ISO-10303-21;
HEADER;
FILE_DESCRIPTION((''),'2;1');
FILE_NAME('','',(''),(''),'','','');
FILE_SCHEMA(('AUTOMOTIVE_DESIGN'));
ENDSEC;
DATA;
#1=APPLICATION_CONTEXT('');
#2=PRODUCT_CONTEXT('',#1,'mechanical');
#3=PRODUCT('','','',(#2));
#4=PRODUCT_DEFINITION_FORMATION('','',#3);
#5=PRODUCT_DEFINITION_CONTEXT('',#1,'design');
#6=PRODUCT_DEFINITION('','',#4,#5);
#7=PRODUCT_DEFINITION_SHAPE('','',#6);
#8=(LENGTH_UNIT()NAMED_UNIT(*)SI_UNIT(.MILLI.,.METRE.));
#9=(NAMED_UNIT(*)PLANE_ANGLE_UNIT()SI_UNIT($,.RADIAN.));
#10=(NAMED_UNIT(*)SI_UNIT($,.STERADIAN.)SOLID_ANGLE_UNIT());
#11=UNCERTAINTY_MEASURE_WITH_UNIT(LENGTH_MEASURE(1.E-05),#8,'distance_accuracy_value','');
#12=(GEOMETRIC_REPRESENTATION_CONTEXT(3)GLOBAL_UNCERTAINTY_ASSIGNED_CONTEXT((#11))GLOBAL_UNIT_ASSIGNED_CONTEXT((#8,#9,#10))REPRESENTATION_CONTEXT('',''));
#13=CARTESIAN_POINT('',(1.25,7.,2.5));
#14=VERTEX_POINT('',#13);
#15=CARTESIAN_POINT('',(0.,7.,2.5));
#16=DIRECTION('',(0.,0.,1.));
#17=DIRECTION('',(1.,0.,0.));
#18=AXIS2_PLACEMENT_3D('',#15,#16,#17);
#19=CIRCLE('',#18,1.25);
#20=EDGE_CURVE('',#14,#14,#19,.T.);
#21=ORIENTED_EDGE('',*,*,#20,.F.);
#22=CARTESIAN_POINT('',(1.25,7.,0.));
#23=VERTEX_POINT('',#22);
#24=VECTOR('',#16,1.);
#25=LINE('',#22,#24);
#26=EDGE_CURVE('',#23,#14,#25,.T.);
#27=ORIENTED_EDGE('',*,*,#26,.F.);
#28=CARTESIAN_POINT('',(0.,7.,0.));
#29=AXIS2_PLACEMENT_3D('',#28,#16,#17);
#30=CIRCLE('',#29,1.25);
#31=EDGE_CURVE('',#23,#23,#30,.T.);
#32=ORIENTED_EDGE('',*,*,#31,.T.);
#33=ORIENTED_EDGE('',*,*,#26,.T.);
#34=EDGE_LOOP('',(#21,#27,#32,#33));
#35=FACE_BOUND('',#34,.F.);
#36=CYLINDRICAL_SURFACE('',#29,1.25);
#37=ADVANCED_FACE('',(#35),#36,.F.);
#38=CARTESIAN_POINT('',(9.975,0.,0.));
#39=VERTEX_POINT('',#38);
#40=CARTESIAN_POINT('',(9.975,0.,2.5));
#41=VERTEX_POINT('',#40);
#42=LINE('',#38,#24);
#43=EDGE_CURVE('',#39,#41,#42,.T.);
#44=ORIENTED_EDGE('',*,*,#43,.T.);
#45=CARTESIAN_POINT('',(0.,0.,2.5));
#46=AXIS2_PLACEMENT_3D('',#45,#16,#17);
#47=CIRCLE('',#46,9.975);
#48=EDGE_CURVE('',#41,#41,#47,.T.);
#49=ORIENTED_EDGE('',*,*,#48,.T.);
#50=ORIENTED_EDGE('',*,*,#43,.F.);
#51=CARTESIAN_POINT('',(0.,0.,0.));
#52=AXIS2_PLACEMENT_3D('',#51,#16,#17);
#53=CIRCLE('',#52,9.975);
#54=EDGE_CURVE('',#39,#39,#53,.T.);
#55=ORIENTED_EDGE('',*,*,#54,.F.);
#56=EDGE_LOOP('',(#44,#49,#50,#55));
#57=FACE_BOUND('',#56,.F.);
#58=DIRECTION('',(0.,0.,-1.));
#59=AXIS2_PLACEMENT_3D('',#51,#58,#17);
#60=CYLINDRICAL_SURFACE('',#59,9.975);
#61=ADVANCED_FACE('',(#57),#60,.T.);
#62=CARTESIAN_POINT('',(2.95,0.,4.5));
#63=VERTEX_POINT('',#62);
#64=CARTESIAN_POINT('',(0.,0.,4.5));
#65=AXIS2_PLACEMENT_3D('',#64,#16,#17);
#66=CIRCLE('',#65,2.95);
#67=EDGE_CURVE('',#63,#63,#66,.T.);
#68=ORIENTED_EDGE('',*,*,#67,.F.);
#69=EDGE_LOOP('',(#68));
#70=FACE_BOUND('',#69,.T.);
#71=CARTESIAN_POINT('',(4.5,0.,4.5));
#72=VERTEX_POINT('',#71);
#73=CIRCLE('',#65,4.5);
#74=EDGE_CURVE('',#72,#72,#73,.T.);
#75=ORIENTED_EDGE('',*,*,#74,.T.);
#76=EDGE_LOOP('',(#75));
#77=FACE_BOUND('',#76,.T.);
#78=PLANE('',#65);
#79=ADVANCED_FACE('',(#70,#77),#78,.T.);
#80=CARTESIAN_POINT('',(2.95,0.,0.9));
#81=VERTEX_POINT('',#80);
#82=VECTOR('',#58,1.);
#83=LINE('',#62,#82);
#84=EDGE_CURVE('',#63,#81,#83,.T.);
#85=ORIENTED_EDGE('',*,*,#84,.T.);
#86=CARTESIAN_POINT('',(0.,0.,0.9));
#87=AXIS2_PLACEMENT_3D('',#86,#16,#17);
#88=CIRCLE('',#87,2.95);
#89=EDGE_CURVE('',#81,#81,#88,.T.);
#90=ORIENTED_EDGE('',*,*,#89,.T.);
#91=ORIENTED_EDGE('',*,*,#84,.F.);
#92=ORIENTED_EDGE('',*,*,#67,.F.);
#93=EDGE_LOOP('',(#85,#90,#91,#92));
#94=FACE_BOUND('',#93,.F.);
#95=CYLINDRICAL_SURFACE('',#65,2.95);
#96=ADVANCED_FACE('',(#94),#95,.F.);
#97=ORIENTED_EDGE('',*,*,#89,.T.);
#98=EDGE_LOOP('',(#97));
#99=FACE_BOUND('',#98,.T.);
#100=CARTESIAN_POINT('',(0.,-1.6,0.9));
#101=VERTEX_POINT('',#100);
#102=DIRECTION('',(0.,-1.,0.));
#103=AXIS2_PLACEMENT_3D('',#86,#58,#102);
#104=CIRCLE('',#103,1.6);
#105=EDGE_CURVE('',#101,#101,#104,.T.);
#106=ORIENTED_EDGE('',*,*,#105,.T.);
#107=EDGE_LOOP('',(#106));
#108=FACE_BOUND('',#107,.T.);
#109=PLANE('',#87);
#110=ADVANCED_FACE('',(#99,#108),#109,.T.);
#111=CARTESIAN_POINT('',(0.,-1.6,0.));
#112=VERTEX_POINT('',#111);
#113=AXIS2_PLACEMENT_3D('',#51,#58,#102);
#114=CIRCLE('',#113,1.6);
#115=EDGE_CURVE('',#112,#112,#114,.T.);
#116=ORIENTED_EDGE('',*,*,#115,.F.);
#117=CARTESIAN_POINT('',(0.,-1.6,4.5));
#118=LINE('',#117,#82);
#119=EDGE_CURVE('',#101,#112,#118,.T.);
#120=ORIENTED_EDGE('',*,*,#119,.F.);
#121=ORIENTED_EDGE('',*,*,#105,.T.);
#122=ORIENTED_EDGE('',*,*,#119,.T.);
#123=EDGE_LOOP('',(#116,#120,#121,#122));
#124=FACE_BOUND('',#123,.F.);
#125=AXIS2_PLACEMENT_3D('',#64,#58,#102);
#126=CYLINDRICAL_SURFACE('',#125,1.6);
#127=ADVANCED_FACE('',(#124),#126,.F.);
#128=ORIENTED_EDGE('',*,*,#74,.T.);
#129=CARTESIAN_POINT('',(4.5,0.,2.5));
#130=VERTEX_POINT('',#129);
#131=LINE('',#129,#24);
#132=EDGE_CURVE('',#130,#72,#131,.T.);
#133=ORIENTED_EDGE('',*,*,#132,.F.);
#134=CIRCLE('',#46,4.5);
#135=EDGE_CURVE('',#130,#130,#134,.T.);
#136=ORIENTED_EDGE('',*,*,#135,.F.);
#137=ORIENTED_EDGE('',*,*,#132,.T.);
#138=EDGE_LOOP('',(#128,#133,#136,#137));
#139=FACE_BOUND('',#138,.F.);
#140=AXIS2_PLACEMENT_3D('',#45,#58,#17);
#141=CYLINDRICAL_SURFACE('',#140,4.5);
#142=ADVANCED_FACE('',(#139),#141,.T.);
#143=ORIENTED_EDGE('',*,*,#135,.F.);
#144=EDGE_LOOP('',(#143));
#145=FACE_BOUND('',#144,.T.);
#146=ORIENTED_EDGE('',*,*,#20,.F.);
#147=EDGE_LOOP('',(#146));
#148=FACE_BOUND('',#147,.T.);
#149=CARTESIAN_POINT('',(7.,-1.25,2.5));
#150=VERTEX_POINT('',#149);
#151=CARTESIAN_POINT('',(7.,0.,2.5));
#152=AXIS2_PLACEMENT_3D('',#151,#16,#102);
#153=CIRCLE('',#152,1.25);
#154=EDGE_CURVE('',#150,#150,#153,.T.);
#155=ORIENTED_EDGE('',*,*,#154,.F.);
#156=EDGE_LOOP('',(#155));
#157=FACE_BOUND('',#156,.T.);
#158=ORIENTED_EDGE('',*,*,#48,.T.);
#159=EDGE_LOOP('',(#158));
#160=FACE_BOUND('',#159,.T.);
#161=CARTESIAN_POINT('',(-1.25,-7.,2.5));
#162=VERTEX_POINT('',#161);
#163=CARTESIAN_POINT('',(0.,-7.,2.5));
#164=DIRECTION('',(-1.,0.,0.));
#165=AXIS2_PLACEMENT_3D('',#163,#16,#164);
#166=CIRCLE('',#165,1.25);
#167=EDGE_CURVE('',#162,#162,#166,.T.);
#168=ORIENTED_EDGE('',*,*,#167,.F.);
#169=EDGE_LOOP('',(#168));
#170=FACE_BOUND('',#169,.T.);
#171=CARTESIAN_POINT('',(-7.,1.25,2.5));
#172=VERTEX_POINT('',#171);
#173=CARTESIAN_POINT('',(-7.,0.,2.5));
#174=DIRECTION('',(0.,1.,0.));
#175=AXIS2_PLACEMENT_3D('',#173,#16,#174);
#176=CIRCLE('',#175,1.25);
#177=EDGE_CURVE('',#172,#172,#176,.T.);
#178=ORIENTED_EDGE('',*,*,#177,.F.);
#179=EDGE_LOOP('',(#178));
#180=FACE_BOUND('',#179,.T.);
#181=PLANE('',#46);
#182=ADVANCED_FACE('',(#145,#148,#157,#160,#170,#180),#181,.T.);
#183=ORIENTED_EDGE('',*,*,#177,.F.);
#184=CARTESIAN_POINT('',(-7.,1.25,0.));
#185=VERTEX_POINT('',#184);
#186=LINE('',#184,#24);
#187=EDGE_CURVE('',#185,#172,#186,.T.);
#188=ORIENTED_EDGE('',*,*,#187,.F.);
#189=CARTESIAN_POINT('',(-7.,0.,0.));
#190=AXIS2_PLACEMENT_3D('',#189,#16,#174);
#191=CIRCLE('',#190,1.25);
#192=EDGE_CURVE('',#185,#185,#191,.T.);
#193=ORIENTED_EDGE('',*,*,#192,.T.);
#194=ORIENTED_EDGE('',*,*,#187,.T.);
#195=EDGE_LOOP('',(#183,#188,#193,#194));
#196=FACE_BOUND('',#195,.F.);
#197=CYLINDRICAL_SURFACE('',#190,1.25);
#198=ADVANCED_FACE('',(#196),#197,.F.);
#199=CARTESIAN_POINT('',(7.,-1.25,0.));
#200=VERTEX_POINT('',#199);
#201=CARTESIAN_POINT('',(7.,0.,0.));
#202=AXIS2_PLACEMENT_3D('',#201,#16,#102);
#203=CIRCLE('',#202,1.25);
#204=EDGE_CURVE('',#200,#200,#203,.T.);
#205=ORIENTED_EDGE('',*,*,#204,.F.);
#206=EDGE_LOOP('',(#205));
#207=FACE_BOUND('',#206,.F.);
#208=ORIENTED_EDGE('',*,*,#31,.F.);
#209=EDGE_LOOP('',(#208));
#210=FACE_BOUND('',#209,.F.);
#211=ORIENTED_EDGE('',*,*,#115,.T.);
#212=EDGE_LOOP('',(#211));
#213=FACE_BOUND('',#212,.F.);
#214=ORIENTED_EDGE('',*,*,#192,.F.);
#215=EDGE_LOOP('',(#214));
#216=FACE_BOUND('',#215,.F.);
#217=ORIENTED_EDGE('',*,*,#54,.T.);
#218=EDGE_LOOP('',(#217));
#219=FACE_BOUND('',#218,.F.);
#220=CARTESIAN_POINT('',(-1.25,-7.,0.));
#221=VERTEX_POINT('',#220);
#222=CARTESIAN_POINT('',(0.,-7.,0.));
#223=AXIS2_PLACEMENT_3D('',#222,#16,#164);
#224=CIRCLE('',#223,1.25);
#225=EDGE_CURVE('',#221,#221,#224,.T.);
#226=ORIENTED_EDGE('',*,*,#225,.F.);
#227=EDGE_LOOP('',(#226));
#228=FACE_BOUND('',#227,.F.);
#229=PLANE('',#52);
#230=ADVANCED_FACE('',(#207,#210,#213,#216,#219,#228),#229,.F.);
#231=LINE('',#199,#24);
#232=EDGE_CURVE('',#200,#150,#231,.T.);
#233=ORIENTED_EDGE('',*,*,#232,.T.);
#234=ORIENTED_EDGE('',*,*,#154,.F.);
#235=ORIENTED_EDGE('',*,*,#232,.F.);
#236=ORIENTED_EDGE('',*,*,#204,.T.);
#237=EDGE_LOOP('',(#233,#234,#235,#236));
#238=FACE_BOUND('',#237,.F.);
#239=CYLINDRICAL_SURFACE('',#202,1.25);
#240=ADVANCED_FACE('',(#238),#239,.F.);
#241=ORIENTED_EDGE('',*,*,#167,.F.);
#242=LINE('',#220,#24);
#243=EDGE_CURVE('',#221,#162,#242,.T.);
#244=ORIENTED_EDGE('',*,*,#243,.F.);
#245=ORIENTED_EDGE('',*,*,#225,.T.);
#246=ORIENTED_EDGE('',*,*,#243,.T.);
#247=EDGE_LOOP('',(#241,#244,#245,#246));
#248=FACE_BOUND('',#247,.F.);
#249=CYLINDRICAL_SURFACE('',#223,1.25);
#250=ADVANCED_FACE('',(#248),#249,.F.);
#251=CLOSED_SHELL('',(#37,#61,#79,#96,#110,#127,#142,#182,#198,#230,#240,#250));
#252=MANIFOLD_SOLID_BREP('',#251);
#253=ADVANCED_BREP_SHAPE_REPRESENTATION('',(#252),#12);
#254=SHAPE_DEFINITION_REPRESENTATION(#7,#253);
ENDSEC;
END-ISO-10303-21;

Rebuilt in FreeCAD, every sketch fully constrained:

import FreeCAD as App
import Part
import Sketcher
from FreeCAD import Vector
Q = App.Units.Quantity

doc = App.newDocument("Part")
body = doc.addObject("PartDesign::Body", "Body")

# Sketch on XY plane
sketch1 = body.newObject("Sketcher::SketchObject", "Sketch")
sketch1.AttachmentSupport = (doc.getObject("XY_Plane"), [""])
sketch1.MapMode = "FlatFace"
sketch1.addGeometry(Part.Circle(Vector(0, 0, 0), Vector(0, 0, 1), 10), False)
sketch1.addConstraint([
    Sketcher.Constraint("Coincident", 0, 3, -1, 1),
    Sketcher.Constraint("Diameter", 0, Q("19.95 mm")),
])
pad1 = body.newObject("PartDesign::Pad", "Pad")
pad1.Profile = sketch1
pad1.Length = 2.5

# Sketch on XY plane
sketch2 = body.newObject("Sketcher::SketchObject", "Sketch001")
sketch2.AttachmentSupport = (doc.getObject("XY_Plane"), [""])
sketch2.MapMode = "FlatFace"
sketch2.AttachmentOffset = App.Placement(Vector(0, 0, 2.5), App.Rotation())
sketch2.addGeometry(Part.Circle(Vector(0, 0, 0), Vector(0, 0, 1), 4.5), False)
sketch2.addConstraint([
    Sketcher.Constraint("Coincident", 0, 3, -1, 1),
    Sketcher.Constraint("Diameter", 0, Q("9 mm")),
])
pad2 = body.newObject("PartDesign::Pad", "Pad001")
pad2.Profile = sketch2
pad2.Length = 2

# Sketch on XY plane
sketch3 = body.newObject("Sketcher::SketchObject", "Sketch002")
sketch3.AttachmentSupport = (doc.getObject("XY_Plane"), [""])
sketch3.MapMode = "FlatFace"
sketch3.AttachmentOffset = App.Placement(Vector(0, 0, 4.5), App.Rotation())
sketch3.addGeometry(Part.Circle(Vector(0, 0, 0), Vector(0, 0, 1), 1.6), False)
sketch3.addConstraint([
    Sketcher.Constraint("Coincident", 0, 3, -1, 1),
    Sketcher.Constraint("Diameter", 0, Q("3.2 mm")),
])
doc.recompute()
hole = body.newObject("PartDesign::Hole", "Hole")
hole.Profile = sketch3
hole.ThreadType = "None"
hole.Diameter = 3.2
hole.DepthType = "ThroughAll"

# Sketch on XY plane
sketch4 = body.newObject("Sketcher::SketchObject", "Sketch003")
sketch4.AttachmentSupport = (doc.getObject("XY_Plane"), [""])
sketch4.MapMode = "FlatFace"
sketch4.addGeometry(Part.Circle(Vector(-7, 0, 0), Vector(0, 0, 1), 1.2), False)
sketch4.addConstraint([
    Sketcher.Constraint("PointOnObject", 0, 3, -1),
    Sketcher.Constraint("Diameter", 0, Q("2.5 mm")),
    Sketcher.Constraint("DistanceX", 0, 3, -1, 1, Q("7 mm")),
])
doc.recompute()
hole2 = body.newObject("PartDesign::Hole", "Hole001")
hole2.Profile = sketch4
hole2.ThreadType = "None"
hole2.Diameter = 2.5
hole2.DepthType = "ThroughAll"
hole2.Reversed = True
doc.recompute()

polarpattern = body.newObject("PartDesign::PolarPattern", "PolarPattern")
polarpattern.Originals = [hole2]
polarpattern.Axis = (doc.getObject("Z_Axis"), [""])
polarpattern.Angle = 360
polarpattern.Occurrences = 4
body.Tip = polarpattern

# Sketch on XY plane
sketch5 = body.newObject("Sketcher::SketchObject", "Sketch004")
sketch5.AttachmentSupport = (doc.getObject("XY_Plane"), [""])
sketch5.MapMode = "FlatFace"
sketch5.AttachmentOffset = App.Placement(Vector(0, 0, 4.5), App.Rotation())
sketch5.addGeometry(Part.Circle(Vector(0, 0, 0), Vector(0, 0, 1), 3), False)
sketch5.addConstraint([
    Sketcher.Constraint("Coincident", 0, 3, -1, 1),
    Sketcher.Constraint("Diameter", 0, Q("5.9 mm")),
])
pocket1 = body.newObject("PartDesign::Pocket", "Pocket")
pocket1.Profile = sketch5
pocket1.Length = 3.6

doc.recompute()
